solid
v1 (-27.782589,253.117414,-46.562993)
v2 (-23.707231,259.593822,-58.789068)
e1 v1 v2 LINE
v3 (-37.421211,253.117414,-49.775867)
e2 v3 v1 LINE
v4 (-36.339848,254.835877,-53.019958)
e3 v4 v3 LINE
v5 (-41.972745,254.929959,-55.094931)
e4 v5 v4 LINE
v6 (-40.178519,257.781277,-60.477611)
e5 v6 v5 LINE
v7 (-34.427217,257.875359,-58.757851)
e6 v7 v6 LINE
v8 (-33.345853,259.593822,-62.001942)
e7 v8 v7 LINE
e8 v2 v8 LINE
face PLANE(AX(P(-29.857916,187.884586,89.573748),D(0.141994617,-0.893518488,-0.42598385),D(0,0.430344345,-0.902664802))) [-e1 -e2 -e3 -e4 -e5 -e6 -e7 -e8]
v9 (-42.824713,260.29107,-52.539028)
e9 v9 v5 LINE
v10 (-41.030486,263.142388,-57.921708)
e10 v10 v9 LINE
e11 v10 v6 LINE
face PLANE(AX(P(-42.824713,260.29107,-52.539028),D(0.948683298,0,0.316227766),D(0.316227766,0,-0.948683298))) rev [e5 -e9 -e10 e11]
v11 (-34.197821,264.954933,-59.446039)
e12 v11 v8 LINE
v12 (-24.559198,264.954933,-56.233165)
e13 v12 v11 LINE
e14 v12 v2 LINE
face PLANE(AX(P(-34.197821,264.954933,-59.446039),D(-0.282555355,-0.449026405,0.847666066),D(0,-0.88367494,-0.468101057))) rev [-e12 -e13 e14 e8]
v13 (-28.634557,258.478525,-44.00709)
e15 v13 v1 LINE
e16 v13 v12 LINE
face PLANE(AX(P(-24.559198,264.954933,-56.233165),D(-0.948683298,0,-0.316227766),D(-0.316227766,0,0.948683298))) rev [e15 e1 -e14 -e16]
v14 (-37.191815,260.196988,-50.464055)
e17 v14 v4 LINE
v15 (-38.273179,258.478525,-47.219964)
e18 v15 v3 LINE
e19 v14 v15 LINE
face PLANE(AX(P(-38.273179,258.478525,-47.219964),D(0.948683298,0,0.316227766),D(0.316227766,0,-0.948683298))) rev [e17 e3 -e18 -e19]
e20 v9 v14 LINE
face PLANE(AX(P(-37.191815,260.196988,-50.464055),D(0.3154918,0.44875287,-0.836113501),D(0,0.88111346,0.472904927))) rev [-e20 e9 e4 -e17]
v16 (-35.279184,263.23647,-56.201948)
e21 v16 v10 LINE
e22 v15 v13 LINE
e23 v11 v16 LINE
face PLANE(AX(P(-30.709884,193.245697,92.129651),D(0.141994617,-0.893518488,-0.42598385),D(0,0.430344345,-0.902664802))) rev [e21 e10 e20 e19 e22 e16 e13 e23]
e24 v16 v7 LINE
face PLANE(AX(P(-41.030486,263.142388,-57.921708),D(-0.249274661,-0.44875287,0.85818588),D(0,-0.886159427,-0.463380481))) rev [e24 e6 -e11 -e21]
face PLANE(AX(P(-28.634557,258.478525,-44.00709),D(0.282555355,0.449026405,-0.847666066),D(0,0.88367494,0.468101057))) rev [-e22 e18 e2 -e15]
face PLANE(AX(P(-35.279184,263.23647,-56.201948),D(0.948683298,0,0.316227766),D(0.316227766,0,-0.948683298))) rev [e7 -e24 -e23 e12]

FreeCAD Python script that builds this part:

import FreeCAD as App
import Part
import Sketcher
Q = App.Units.Quantity

doc = App.newDocument("Part")
params = doc.addObject("Spreadsheet::Sheet", "Params")
for row, (alias, value) in enumerate([
    ("sketch1_length", "0.4 in"),
    ("sketch1_length2", "0.25 in"),
    ("pad1_length", "6 mm"),
], start=1):
    params.set(f"A{row}", alias)
    params.set(f"B{row}", "=" + value)
    params.setAlias(f"B{row}", alias)

body = doc.addObject("PartDesign::Body", "Body")

# Sketch on an angled plane
sketch1 = body.newObject("Sketcher::SketchObject", "Sketch")
sketch1.Placement = App.Placement(App.Vector(-30.2839, 190.565142, 90.851699), App.Rotation(App.Vector(0.989565804, 0.138757403, 0.03880596), App.Vector(-0.02443457, 0.427049288, -0.903898145), App.Vector(-0.141994617, 0.893518488, 0.42598385), "ZXY"))
sketch1.addGeometry([
    Part.LineSegment(App.Vector(10.3, 164.6, 0), App.Vector(8.6, 165.1, 0)),  # 0
    Part.LineSegment(App.Vector(8.6, 165.1, 0), App.Vector(0.6, 167.7, 0)),  # 1
    Part.LineSegment(App.Vector(0.6, 167.7, 0), App.Vector(-0.6, 164.1, 0)),  # 2
    Part.LineSegment(App.Vector(-0.6, 164.1, 0), App.Vector(-6.3, 165.7, 0)),  # 3
    Part.LineSegment(App.Vector(-6.3, 165.7, 0), App.Vector(-8.3, 159.7, 0)),  # 4
    Part.LineSegment(App.Vector(-8.3, 159.7, 0), App.Vector(-2.7, 157.6, 0)),  # 5
    Part.LineSegment(App.Vector(-2.7, 157.6, 0), App.Vector(-3.8, 154, 0)),  # 6
    Part.LineSegment(App.Vector(-3.8, 154, 0), App.Vector(5.8, 150.9, 0)),  # 7
    Part.LineSegment(App.Vector(5.8, 150.9, 0), App.Vector(10.3, 164.6, 0)),  # 8
], False)
sketch1.addConstraint([
    Sketcher.Constraint("Coincident", 0, 2, 1, 1),
    Sketcher.Constraint("Coincident", 1, 2, 2, 1),
    Sketcher.Constraint("Coincident", 2, 2, 3, 1),
    Sketcher.Constraint("Coincident", 3, 2, 4, 1),
    Sketcher.Constraint("Coincident", 4, 2, 5, 1),
    Sketcher.Constraint("Coincident", 5, 2, 6, 1),
    Sketcher.Constraint("Coincident", 6, 2, 7, 1),
    Sketcher.Constraint("Coincident", 7, 2, 8, 1),
    Sketcher.Constraint("Coincident", 8, 2, 0, 1),
    Sketcher.Constraint("Parallel", 0, 1),
    Sketcher.Constraint("Perpendicular", 1, 2),
    Sketcher.Constraint("Parallel", 2, 4),
    Sketcher.Constraint("Parallel", 4, 6),
    Sketcher.Constraint("Perpendicular", 6, 7),
    Sketcher.Constraint("Perpendicular", 7, 8),
    Sketcher.Constraint("Equal", 3, 5),
    Sketcher.Constraint("Equal", 2, 6),
    Sketcher.Constraint("Distance", 7, Q("0.4 in")),
    Sketcher.Constraint("Distance", 4, Q("0.25 in")),
    Sketcher.Constraint("DistanceX", 5, 2, 1, 2, Q("3.2744 mm")),
    Sketcher.Constraint("DistanceY", 7, 2, 5, 2, Q("6.7794 mm")),
    Sketcher.Constraint("Distance", 8, Q("14.423222 mm")),
    Sketcher.Constraint("DistanceY", -1, 1, 1, 2, Q("167.717589 mm")),
    Sketcher.Constraint("DistanceX", 3, 2, -1, 1, Q("6.337119 mm")),
    Sketcher.Constraint("DistanceY", -1, 1, 4, 2, Q("159.69345 mm")),
    Sketcher.Constraint("DistanceY", -1, 1, 5, 2, Q("157.64007 mm")),
    Sketcher.Constraint("DistanceY", 8, 2, 0, 2, Q("0.55743 mm")),
])
sketch1.setExpression("Constraints[17]", "Params.sketch1_length")
sketch1.setExpression("Constraints[18]", "Params.sketch1_length2")
pad1 = body.newObject("PartDesign::Pad", "Pad")
pad1.Profile = sketch1
pad1.setExpression("Length", "Params.pad1_length")
pad1.Midplane = True

doc.recompute()
